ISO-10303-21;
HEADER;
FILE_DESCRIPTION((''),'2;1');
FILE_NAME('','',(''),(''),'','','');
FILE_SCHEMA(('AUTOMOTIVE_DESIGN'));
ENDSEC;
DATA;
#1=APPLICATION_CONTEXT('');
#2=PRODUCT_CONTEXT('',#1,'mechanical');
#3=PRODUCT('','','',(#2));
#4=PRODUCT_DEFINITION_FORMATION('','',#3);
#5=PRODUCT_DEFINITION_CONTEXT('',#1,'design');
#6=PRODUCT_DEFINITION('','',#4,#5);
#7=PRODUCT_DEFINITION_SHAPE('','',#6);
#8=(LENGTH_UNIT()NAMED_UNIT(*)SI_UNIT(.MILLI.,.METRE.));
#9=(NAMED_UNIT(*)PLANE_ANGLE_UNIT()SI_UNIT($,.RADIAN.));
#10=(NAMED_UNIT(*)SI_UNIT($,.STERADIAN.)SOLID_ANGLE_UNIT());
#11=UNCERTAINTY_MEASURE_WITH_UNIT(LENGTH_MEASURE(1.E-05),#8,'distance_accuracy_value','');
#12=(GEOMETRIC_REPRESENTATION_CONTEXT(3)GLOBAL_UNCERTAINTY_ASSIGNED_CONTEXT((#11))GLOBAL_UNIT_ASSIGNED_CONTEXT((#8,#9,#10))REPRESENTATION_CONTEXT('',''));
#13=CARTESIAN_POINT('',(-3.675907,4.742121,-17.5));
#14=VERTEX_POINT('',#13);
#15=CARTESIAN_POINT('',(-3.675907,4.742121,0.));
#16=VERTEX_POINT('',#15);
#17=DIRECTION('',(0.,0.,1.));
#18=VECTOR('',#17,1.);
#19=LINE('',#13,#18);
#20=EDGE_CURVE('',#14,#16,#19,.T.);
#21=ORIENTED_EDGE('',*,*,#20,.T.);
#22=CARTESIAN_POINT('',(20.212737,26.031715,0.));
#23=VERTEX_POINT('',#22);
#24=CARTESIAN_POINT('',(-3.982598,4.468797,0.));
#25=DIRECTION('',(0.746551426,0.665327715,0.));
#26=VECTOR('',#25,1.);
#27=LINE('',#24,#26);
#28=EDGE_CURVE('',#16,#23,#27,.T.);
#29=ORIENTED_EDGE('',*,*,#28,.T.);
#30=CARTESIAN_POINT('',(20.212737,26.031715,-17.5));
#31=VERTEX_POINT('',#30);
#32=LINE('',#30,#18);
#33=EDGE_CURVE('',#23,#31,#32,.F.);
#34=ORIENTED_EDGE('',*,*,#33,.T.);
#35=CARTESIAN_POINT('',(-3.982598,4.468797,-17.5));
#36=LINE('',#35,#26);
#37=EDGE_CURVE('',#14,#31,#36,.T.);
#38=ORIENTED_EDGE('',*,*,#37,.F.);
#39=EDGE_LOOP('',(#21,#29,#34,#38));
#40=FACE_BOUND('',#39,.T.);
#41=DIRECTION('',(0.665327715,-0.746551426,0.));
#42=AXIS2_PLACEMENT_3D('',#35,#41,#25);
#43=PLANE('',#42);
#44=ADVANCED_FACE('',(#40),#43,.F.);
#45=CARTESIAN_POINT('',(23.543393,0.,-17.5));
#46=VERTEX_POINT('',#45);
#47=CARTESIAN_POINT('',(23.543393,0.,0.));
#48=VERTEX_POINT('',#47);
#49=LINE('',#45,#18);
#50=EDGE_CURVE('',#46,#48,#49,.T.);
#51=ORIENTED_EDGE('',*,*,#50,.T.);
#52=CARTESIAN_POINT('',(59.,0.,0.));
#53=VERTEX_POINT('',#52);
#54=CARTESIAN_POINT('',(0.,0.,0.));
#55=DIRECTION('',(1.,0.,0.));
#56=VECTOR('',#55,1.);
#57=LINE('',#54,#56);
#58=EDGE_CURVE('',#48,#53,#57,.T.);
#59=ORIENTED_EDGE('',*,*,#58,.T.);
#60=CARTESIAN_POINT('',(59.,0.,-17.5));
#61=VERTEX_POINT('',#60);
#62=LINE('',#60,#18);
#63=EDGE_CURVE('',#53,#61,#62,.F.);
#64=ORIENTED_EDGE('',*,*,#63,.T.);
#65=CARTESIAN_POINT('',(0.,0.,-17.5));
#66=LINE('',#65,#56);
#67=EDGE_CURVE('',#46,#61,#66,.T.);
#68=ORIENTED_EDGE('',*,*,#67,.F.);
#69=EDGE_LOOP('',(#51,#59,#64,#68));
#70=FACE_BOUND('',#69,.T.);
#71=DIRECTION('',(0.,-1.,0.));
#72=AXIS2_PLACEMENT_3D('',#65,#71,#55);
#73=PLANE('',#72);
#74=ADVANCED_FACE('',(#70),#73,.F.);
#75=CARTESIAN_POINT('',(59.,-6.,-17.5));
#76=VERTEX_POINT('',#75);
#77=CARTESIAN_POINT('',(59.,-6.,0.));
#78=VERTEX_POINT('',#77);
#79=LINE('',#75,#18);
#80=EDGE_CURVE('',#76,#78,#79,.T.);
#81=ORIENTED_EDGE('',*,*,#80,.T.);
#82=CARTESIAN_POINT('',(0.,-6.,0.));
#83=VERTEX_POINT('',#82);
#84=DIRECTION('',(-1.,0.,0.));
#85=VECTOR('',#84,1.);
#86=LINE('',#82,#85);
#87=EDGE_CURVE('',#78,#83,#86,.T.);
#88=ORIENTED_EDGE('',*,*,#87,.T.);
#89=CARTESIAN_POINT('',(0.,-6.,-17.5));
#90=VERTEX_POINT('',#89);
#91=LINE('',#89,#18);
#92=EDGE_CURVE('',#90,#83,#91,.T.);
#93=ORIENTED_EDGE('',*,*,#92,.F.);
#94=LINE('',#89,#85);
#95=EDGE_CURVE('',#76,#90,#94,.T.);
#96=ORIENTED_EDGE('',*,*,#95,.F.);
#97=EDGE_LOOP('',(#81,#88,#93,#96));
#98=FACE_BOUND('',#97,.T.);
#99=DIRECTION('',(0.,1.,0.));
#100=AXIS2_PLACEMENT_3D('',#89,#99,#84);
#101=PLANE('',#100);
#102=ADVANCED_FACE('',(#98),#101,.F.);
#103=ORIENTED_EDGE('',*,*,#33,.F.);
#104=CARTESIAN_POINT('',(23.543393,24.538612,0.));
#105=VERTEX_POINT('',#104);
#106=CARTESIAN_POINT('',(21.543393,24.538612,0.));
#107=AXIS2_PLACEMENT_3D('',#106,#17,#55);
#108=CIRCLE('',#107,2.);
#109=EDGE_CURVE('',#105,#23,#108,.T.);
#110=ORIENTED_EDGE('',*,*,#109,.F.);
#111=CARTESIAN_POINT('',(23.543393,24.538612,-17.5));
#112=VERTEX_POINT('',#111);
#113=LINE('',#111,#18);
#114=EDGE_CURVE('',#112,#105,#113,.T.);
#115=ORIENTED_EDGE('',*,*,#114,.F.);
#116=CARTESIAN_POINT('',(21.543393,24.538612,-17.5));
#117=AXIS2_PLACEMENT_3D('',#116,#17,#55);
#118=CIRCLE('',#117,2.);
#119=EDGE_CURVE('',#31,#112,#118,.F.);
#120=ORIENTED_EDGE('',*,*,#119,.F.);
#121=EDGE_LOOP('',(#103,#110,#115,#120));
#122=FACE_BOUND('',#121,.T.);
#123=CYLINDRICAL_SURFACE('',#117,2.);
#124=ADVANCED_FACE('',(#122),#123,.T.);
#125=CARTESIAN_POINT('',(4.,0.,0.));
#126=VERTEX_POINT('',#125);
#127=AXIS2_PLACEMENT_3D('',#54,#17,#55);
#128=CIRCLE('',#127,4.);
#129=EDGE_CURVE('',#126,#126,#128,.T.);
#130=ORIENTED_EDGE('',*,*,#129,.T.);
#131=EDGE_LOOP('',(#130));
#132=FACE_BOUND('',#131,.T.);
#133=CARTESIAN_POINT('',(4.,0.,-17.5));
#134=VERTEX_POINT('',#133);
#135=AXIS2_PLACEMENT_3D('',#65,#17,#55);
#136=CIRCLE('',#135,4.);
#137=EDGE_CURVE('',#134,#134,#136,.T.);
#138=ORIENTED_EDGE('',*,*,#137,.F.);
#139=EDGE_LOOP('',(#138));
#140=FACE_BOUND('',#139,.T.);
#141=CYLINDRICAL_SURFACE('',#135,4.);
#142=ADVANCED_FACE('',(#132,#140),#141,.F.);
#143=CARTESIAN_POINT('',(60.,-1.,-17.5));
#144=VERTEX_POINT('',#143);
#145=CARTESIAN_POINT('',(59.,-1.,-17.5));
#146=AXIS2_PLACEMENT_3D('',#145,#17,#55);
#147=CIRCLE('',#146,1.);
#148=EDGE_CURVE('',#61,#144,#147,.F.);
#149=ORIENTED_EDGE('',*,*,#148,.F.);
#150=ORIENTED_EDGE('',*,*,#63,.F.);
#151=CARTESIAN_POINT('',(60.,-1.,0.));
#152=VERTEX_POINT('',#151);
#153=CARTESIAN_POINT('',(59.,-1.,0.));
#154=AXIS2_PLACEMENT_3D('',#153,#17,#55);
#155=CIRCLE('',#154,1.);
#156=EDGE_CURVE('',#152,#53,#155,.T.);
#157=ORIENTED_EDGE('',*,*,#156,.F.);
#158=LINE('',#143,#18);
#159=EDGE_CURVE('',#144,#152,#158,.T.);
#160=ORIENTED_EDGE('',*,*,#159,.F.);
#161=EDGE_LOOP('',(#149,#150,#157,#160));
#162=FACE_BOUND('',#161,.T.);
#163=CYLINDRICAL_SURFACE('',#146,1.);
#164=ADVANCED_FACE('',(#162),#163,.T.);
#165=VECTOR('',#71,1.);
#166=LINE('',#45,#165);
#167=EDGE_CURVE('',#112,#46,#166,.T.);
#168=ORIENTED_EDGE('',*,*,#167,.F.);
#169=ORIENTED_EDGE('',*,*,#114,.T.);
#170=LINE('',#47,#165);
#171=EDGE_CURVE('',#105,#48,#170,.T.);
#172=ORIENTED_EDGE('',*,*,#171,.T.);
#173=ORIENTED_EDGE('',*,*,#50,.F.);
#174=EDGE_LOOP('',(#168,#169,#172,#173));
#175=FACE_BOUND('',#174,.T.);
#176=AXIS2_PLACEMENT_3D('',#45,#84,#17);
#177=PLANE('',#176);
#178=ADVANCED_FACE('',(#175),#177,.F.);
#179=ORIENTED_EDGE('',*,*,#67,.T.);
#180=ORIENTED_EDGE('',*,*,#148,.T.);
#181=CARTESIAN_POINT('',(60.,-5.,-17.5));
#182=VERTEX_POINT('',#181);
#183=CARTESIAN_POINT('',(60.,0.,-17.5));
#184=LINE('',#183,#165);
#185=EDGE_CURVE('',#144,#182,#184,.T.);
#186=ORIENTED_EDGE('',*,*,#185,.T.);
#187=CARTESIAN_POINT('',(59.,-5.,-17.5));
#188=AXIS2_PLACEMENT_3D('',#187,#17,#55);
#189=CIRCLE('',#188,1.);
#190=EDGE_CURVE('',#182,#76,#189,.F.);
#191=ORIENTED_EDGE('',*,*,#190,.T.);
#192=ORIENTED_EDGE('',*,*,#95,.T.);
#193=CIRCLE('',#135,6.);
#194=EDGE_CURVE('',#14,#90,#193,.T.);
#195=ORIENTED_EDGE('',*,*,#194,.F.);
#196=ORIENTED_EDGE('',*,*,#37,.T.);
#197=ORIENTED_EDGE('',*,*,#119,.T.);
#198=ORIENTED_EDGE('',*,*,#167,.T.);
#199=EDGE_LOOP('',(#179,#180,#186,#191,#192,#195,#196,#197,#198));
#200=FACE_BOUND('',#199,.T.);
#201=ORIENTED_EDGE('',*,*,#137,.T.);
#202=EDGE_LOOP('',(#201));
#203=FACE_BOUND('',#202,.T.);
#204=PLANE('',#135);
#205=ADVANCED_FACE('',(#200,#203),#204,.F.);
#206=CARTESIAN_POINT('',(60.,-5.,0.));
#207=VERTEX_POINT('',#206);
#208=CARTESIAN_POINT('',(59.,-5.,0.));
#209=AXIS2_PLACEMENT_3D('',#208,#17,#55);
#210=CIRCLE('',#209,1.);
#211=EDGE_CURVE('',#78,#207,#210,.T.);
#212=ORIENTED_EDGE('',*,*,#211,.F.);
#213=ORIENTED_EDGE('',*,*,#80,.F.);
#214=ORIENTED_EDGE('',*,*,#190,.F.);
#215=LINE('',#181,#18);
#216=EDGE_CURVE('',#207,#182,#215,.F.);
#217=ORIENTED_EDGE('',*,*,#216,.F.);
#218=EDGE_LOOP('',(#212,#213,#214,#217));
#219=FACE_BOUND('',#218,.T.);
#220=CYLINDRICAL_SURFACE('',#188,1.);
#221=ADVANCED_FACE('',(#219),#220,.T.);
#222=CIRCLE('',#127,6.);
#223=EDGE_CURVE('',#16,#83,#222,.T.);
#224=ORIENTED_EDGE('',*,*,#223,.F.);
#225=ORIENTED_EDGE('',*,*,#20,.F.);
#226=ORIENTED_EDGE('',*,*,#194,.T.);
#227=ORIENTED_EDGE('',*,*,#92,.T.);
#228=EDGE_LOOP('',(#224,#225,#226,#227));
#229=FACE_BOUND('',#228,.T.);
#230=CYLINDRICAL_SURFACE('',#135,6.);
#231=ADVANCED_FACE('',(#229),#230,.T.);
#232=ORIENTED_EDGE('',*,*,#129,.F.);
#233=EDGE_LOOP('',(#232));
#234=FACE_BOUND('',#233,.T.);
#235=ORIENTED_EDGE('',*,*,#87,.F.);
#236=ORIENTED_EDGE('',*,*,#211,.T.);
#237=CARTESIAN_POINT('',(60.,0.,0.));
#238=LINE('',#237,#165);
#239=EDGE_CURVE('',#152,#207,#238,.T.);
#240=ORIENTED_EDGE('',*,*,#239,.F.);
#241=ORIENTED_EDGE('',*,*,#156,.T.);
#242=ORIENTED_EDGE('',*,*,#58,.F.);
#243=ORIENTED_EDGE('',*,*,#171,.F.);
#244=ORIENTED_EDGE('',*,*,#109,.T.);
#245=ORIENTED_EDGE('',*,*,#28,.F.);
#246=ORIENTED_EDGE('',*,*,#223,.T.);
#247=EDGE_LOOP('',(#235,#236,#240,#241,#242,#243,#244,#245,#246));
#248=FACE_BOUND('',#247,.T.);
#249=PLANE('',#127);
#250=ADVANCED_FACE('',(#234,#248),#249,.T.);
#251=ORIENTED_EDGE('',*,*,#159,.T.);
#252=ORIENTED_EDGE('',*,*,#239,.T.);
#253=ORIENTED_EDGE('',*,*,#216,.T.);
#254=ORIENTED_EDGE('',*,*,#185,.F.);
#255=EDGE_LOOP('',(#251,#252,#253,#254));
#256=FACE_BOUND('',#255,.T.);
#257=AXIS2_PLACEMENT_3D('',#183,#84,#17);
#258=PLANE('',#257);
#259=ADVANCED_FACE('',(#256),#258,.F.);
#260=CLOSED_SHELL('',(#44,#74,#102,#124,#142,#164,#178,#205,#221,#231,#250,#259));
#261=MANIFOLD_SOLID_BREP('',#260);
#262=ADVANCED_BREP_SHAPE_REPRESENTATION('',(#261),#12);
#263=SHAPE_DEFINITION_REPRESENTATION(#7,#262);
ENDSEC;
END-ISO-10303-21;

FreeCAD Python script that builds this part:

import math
import FreeCAD as App
import Part
import Sketcher

V = App.Vector
Q = App.Units.Quantity


def edges_at(feature, points):
    """Names of the edges that pass closest to the given points."""
    edges = feature.Shape.Edges
    near = lambda p: min(range(len(edges)), key=lambda i: edges[i].distToShape(Part.Vertex(*p))[0])
    return sorted({f"Edge{near(p) + 1}" for p in points})

doc = App.newDocument("Part")
body = doc.addObject("PartDesign::Body", "Body")

# Sketch on XY plane
sketch1 = body.newObject("Sketcher::SketchObject", "Sketch")
sketch1.AttachmentSupport = (doc.getObject("XY_Plane"), [""])
sketch1.MapMode = "FlatFace"
sketch1.addGeometry([
    Part.ArcOfCircle(Part.Circle(V(0, 0, 0), V(0, 0, 1), 6), math.radians(127.781445), math.radians(270)),  # 0
    Part.LineSegment(V(0, -6, 0), V(60, -6, 0)),  # 1
    Part.LineSegment(V(60, -6, 0), V(60, 0, 0)),  # 2
    Part.LineSegment(V(60, 0, 0), V(23.543393, 0, 0)),  # 3
    Part.LineSegment(V(23.543393, 0, 0), V(23.543393, 29, 0)),  # 4
    Part.LineSegment(V(23.543393, 29, 0), V(-3.675907, 4.742121, 0)),  # 5
    Part.Circle(V(0, 0, 0), V(0, 0, 1), 4),  # 6
], False)
sketch1.addConstraint([
    Sketcher.Constraint("Tangent", 0, 2, 1, 1),
    Sketcher.Constraint("Coincident", 1, 2, 2, 1),
    Sketcher.Constraint("Coincident", 2, 2, 3, 1),
    Sketcher.Constraint("Coincident", 3, 2, 4, 1),
    Sketcher.Constraint("Coincident", 4, 2, 5, 1),
    Sketcher.Constraint("Coincident", 5, 2, 0, 1),
    Sketcher.Constraint("Horizontal", 1),
    Sketcher.Constraint("Vertical", 2),
    Sketcher.Constraint("Horizontal", 3),
    Sketcher.Constraint("Vertical", 4),
    Sketcher.Constraint("Coincident", 0, 3, -1, 1),
    Sketcher.Constraint("Coincident", 6, 3, -1, 1),
    Sketcher.Constraint("PointOnObject", 2, 2, -1),
    Sketcher.Constraint("Diameter", 6, Q("8 mm")),
    Sketcher.Constraint("Radius", 0, Q("6 mm")),
    Sketcher.Constraint("DistanceX", 1, 1, 1, 2, Q("60 mm")),
    Sketcher.Constraint("DistanceY", 4, 1, 4, 2, Q("29 mm")),
    Sketcher.Constraint("DistanceX", 5, 2, 3, 2, Q("27.219299 mm")),
    Sketcher.Constraint("DistanceX", 3, 2, 3, 1, Q("36.456607 mm")),
])
pad1 = body.newObject("PartDesign::Pad", "Pad")
pad1.Profile = sketch1
pad1.Length = 17.5
pad1.Reversed = True
doc.recompute()

fillet = body.newObject("PartDesign::Fillet", "Fillet")
fillet.Base = (pad1, edges_at(pad1, [(23.543, 29, -8.75)]))
fillet.Radius = 2
doc.recompute()

fillet2 = body.newObject("PartDesign::Fillet", "Fillet001")
fillet2.Base = (fillet, edges_at(fillet, [(60, 0, -8.75)]))
fillet2.Radius = 1
doc.recompute()

fillet3 = body.newObject("PartDesign::Fillet", "Fillet002")
fillet3.Base = (fillet2, edges_at(fillet2, [(60, -6, -8.75)]))
fillet3.Radius = 1

doc.recompute()
